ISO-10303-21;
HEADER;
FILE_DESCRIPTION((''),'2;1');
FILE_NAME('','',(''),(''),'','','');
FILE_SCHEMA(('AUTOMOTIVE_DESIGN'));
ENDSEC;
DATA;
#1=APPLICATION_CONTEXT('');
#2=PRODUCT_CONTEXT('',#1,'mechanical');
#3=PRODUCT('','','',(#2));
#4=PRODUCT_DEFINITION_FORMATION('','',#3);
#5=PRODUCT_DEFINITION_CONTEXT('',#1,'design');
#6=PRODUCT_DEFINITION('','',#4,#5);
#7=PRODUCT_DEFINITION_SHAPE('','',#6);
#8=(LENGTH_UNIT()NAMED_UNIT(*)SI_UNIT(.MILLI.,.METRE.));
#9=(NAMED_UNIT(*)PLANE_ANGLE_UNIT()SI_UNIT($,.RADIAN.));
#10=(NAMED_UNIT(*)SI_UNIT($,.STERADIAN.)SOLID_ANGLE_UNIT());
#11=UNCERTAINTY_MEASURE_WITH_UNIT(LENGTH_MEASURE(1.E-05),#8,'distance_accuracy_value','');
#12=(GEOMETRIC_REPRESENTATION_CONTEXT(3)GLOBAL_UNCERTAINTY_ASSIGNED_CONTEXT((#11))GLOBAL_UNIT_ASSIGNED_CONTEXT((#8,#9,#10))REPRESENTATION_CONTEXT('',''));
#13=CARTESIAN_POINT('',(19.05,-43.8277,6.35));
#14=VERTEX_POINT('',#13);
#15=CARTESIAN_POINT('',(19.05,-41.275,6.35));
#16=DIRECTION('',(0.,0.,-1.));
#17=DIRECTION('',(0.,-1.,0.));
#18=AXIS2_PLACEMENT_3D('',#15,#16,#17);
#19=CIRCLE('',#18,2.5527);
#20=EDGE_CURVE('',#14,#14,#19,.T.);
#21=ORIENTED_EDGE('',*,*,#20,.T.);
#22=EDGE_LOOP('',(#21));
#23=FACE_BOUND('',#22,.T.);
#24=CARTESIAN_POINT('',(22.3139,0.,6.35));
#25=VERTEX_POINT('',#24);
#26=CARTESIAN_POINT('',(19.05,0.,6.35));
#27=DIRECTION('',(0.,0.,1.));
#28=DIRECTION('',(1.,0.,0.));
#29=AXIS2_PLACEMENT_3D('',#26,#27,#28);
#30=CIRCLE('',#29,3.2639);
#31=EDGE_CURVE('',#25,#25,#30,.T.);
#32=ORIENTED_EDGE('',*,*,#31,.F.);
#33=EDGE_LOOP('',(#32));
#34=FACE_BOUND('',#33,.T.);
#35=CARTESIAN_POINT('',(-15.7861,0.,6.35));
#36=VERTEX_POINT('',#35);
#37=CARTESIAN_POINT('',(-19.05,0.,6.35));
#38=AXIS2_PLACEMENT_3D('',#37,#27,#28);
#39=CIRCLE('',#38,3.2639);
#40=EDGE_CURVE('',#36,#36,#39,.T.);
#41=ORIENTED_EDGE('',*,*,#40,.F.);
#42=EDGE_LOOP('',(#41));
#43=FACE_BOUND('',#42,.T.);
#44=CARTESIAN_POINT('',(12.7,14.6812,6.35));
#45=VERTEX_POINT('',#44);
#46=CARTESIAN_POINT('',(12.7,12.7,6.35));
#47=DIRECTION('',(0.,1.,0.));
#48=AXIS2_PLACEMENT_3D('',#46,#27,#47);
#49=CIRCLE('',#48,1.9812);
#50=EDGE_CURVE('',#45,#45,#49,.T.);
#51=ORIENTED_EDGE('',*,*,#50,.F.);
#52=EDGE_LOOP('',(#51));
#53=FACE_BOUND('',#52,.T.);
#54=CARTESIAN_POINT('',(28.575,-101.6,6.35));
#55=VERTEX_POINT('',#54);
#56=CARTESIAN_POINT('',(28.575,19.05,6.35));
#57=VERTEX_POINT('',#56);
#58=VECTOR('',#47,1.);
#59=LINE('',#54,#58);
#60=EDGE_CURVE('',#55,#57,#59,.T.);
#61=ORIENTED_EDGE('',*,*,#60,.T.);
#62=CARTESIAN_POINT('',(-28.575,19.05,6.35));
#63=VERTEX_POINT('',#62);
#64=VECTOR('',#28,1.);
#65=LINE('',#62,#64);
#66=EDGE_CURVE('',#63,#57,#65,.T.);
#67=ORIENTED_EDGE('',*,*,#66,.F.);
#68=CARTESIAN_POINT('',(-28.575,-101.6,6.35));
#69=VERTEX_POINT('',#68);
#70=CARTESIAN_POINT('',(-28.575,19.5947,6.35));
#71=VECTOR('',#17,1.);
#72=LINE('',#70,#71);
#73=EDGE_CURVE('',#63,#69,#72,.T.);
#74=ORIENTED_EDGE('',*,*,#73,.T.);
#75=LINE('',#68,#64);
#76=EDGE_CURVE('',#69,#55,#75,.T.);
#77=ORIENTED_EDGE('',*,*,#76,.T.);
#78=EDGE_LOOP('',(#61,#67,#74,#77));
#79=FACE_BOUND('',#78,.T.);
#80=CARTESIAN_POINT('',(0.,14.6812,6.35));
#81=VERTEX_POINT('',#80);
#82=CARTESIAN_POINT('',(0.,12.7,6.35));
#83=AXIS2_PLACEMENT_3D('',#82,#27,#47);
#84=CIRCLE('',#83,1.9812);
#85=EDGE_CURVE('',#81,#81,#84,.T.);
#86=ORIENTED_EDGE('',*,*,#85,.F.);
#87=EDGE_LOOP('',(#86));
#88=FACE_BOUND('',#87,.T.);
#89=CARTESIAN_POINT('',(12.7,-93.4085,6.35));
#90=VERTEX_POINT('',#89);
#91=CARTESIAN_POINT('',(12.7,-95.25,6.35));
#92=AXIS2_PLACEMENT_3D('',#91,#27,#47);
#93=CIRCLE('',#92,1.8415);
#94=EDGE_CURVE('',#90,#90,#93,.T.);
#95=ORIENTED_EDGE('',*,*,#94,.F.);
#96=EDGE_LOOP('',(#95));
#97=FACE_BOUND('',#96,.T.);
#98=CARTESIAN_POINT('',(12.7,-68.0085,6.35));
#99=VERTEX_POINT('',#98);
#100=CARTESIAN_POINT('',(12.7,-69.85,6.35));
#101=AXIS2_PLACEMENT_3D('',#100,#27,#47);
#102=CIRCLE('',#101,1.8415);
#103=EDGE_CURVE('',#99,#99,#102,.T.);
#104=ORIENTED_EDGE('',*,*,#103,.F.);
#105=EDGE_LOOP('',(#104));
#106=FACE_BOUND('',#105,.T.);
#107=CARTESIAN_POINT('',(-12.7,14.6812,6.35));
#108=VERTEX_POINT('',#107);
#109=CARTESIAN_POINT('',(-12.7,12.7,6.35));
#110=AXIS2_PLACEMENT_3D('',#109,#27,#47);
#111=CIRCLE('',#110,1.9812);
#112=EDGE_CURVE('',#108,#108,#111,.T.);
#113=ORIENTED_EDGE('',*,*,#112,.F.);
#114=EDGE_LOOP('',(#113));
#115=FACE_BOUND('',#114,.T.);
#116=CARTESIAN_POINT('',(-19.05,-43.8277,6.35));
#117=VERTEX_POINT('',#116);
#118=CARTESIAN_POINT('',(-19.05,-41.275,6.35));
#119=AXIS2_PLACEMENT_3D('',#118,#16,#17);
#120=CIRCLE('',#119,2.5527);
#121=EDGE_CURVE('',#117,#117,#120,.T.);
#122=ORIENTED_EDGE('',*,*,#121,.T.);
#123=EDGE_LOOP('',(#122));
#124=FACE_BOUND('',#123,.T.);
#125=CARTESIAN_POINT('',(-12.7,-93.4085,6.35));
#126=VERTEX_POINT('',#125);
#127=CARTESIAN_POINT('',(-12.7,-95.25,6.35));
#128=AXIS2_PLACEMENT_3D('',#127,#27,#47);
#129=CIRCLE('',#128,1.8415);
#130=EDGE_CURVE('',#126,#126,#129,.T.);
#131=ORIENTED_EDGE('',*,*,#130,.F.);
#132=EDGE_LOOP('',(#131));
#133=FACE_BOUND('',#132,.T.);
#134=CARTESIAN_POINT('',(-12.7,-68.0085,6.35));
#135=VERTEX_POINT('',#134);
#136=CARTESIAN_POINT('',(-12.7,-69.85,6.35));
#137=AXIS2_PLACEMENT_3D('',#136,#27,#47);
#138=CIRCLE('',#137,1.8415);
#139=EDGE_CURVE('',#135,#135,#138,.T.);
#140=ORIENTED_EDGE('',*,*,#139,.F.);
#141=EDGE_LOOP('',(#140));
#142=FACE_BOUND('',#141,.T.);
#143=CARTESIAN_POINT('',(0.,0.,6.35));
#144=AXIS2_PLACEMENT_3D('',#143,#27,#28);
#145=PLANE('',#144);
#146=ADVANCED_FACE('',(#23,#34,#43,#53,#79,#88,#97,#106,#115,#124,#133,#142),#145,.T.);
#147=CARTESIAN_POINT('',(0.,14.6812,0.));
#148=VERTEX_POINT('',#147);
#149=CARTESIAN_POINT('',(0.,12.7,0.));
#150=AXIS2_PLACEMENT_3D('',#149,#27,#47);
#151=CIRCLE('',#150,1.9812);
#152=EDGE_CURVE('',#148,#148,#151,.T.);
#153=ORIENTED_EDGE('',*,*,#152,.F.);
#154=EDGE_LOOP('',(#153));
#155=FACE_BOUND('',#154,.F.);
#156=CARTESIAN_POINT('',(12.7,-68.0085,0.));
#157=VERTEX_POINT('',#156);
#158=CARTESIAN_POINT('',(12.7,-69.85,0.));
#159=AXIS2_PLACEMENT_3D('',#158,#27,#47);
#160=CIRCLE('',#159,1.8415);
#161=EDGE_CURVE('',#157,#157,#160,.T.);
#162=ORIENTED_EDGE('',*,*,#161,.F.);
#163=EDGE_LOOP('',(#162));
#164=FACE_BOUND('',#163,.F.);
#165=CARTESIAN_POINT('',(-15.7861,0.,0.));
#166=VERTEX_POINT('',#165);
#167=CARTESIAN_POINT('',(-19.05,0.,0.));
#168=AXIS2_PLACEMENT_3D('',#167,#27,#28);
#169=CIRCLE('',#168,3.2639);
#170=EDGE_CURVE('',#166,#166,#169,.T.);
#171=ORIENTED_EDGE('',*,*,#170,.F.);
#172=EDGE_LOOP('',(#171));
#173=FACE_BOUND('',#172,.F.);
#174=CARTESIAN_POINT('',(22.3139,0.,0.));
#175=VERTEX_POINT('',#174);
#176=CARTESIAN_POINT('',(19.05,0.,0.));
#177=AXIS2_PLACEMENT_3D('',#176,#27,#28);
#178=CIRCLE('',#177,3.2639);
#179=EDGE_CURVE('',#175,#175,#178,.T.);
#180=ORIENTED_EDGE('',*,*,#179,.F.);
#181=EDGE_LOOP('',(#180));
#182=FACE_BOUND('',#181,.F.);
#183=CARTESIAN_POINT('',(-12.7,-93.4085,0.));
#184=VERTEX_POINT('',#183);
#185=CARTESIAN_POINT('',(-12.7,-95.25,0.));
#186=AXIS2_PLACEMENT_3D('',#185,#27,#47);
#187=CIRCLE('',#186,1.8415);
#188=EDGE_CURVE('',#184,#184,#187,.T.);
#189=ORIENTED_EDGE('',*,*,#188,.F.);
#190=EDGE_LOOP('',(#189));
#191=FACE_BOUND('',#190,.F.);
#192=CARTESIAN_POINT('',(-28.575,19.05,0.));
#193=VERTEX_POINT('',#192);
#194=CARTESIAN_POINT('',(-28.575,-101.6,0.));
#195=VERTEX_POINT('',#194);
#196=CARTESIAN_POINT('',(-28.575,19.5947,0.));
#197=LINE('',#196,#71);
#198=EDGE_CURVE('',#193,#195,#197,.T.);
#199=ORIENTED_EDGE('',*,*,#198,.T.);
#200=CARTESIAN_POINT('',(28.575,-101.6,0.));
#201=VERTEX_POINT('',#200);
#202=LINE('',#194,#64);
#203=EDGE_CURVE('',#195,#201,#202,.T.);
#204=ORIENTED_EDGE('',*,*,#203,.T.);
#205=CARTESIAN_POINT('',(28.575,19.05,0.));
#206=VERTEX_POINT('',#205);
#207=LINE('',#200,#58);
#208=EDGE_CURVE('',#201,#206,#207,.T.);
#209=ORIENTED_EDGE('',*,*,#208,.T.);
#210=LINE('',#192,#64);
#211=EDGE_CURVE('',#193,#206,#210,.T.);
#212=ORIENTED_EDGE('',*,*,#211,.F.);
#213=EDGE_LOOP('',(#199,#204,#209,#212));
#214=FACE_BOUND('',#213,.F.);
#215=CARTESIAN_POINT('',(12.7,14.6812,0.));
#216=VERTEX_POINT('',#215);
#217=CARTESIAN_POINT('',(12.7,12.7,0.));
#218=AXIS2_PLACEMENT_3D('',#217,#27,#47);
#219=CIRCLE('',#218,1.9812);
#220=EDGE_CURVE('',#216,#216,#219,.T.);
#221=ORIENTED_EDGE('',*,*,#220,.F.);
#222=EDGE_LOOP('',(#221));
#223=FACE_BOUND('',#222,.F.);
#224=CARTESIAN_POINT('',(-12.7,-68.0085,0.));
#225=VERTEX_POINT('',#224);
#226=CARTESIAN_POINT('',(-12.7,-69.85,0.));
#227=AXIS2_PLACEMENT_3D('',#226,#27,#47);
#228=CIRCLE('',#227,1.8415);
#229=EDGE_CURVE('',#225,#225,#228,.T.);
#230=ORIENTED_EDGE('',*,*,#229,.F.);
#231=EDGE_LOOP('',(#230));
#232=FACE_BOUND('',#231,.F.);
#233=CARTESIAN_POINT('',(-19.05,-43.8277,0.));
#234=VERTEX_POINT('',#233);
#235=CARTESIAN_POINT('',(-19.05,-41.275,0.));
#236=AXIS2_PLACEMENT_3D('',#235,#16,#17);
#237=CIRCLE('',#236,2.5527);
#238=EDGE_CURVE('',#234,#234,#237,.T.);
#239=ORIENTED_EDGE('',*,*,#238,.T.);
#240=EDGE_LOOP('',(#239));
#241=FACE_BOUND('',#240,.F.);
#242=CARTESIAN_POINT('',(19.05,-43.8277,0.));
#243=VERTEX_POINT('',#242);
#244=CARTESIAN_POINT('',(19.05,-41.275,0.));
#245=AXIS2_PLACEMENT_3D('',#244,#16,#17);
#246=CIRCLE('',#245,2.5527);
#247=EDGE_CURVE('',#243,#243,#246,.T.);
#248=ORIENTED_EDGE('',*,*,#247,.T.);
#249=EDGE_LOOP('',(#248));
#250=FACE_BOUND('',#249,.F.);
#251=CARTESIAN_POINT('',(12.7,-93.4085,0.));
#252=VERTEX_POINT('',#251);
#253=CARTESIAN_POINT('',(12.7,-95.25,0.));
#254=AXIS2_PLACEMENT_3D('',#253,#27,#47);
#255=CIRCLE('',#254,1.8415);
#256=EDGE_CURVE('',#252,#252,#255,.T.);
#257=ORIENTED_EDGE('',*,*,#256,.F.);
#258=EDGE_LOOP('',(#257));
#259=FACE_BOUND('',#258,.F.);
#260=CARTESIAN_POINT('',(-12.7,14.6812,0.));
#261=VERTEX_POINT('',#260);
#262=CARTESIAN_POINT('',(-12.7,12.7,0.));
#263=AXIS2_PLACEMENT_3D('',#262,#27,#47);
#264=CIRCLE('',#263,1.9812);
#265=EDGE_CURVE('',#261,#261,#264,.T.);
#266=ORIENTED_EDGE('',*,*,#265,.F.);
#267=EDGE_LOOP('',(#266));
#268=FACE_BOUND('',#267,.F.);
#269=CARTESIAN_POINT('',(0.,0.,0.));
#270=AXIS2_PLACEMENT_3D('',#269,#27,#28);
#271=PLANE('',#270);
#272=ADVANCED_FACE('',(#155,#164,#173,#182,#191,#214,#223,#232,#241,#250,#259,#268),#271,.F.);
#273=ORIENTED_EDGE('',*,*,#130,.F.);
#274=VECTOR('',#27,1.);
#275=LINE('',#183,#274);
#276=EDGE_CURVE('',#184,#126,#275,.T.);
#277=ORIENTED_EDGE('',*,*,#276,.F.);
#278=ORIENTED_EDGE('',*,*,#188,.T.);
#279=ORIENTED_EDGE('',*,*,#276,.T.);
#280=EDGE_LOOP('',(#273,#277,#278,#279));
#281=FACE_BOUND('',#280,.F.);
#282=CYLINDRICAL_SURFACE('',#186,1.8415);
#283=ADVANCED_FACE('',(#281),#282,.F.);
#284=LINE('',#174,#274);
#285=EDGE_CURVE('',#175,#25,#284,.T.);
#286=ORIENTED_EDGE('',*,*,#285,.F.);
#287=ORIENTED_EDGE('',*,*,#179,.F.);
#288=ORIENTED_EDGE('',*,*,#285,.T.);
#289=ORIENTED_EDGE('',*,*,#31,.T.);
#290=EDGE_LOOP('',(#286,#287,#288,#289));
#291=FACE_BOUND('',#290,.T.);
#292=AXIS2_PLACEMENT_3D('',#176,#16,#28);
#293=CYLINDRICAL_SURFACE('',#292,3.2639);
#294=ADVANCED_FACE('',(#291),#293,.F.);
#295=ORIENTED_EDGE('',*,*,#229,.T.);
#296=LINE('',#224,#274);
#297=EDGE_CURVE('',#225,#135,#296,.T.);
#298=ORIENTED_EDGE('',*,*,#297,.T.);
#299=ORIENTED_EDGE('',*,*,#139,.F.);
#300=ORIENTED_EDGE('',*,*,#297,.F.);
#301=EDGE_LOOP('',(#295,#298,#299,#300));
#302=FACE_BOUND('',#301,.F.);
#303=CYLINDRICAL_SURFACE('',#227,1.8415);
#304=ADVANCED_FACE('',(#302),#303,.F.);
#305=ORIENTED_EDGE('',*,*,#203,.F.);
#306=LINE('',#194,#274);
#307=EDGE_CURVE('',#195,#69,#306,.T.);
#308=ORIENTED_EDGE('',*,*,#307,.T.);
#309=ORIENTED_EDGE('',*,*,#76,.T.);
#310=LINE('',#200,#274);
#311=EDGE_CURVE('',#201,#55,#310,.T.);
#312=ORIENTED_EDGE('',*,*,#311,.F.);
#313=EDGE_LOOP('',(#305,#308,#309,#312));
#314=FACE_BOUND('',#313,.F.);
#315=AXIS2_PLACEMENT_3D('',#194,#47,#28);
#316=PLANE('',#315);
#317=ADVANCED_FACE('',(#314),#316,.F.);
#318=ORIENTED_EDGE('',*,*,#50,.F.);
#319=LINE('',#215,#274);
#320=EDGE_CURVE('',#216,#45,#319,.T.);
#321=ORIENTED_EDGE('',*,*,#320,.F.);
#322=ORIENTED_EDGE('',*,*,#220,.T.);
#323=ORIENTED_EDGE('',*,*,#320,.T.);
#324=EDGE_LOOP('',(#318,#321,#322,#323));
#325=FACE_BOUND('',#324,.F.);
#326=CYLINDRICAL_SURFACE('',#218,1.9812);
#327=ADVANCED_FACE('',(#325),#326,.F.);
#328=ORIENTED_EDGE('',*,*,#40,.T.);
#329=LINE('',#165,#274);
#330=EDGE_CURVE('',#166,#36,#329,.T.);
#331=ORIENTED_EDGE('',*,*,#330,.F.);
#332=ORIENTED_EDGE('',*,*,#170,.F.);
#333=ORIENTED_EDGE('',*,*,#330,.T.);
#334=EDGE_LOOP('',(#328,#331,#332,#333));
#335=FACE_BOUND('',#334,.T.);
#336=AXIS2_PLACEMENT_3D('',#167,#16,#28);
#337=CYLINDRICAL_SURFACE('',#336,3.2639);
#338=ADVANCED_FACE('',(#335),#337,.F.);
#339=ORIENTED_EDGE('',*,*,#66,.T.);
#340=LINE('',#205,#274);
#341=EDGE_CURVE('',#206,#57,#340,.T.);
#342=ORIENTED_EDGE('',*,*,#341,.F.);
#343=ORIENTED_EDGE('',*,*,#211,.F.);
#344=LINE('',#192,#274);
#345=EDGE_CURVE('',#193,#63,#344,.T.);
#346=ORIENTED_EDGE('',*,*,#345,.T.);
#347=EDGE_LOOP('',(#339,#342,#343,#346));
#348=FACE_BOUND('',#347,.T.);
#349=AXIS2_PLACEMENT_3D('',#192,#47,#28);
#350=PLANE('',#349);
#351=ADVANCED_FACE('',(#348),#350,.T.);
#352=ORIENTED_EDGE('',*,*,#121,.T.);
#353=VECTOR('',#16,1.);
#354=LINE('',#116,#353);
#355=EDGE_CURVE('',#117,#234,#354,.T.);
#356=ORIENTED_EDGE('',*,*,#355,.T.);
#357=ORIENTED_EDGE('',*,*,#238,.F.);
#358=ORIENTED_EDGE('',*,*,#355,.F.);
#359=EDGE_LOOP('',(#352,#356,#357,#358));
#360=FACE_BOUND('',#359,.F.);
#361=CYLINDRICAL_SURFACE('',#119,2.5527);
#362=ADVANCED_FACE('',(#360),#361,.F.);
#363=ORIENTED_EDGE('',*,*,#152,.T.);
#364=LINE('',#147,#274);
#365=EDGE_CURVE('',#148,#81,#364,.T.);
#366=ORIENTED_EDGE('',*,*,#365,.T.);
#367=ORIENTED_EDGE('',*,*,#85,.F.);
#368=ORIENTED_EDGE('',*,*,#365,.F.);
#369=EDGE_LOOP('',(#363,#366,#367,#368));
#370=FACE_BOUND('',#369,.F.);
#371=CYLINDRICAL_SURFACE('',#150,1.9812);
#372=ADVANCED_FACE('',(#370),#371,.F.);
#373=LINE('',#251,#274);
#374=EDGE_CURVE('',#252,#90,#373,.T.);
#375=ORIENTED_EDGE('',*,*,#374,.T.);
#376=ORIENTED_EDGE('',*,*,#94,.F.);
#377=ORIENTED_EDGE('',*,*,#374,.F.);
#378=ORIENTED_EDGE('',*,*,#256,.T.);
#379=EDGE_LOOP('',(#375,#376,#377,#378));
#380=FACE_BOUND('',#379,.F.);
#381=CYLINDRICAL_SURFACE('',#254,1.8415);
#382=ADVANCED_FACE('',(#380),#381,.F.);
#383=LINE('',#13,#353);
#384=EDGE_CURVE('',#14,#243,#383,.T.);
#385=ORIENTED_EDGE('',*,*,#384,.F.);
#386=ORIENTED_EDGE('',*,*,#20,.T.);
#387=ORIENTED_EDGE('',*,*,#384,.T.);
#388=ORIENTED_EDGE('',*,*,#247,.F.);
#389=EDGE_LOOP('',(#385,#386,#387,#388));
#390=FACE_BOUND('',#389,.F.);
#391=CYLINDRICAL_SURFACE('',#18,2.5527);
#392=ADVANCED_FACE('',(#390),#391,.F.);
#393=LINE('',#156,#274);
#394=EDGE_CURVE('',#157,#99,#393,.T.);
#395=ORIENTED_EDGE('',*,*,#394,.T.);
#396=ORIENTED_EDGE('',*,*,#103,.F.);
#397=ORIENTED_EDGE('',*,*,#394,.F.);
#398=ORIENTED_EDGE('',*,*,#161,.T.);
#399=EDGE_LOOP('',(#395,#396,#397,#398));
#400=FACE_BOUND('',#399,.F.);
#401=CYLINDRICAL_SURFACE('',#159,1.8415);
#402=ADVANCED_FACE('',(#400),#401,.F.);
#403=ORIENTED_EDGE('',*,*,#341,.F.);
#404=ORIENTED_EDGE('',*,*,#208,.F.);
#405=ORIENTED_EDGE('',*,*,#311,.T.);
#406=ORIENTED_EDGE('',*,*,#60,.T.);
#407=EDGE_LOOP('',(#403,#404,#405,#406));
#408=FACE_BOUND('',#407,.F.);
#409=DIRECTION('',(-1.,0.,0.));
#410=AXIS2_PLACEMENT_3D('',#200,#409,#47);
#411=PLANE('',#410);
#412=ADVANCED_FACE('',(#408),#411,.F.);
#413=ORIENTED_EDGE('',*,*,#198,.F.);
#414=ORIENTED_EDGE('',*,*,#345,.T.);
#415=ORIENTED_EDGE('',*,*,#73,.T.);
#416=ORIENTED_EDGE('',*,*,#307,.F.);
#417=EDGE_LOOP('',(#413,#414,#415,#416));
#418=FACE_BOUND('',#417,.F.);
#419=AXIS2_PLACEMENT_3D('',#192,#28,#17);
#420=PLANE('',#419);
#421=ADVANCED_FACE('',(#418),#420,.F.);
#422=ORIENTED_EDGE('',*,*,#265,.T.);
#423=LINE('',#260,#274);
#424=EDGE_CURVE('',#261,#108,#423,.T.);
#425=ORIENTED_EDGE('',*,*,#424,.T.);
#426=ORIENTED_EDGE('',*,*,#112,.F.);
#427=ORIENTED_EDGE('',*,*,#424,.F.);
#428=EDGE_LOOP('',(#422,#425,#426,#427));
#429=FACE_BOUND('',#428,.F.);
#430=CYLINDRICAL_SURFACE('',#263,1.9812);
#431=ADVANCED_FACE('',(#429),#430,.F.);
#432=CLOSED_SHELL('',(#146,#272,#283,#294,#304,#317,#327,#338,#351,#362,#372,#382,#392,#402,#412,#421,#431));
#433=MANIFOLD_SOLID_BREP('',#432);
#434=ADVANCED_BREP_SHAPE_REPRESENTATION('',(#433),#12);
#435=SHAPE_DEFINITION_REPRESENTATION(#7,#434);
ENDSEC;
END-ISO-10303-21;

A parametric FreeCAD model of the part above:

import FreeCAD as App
import Part
import Sketcher

V = App.Vector
Q = App.Units.Quantity


def add_polygon(sketch, points):
    """Adds a closed chain of lines whose ends are joined by coincident constraints."""
    first, n = sketch.GeometryCount, len(points)
    for a, b in zip(points, points[1:] + points[:1]):
        sketch.addGeometry(Part.LineSegment(App.Vector(*a, 0), App.Vector(*b, 0)), False)
    for i in range(n):
        sketch.addConstraint(Sketcher.Constraint("Coincident", first + i, 2, first + (i + 1) % n, 1))

doc = App.newDocument("Part")
params = doc.addObject("Spreadsheet::Sheet", "Params")
for row, (alias, value) in enumerate([
    ("sketch1_diameter", "0.257 in"),
    ("sketch1_width", "2.25 in"),
    ("sketch1_height", "4.75 in"),
    ("pad1_length", "0.25 in"),
    ("sketch2_diameter", "0.201 in"),
    ("hole_diameter", "0.201 in"),
    ("sketch3_diameter", "0.156 in"),
    ("hole2_diameter", "0.156 in"),
    ("sketch4_diameter", "0.145 in"),
    ("hole3_diameter", "0.145 in"),
], start=1):
    params.set(f"A{row}", alias)
    params.set(f"B{row}", "=" + value)
    params.setAlias(f"B{row}", alias)

body = doc.addObject("PartDesign::Body", "Body")

sketch1 = body.newObject("Sketcher::SketchObject", "Sketch")
sketch1.AttachmentSupport = (doc.getObject("XY_Plane"), [""])
sketch1.MapMode = "FlatFace"
add_polygon(sketch1, [(28.575, 19.05), (-28.575, 19.05), (-28.575, -101.6), (28.575, -101.6)])
sketch1.addGeometry(Part.Circle(V(-19.05, 0, 0), V(0, 0, 1), 3.2639), False)
sketch1.addGeometry(Part.Circle(V(19.05, 0, 0), V(0, 0, 1), 3.2639), False)
sketch1.addConstraint([
    Sketcher.Constraint("Horizontal", 0),
    Sketcher.Constraint("Vertical", 1),
    Sketcher.Constraint("Horizontal", 2),
    Sketcher.Constraint("Vertical", 3),
    Sketcher.Constraint("Equal", 4, 5),
    Sketcher.Constraint("Symmetric", 4, 3, 5, 3, -1, 1),
    Sketcher.Constraint("PointOnObject", 4, 3, -1),
    Sketcher.Constraint("Diameter", 4, Q("0.257 in")),
    Sketcher.Constraint("DistanceY", 1, 2, -1, 1, Q("4 in")),
    Sketcher.Constraint("DistanceX", 0, 2, 0, 1, Q("2.25 in")),
    Sketcher.Constraint("DistanceY", 1, 2, 1, 1, Q("4.75 in")),
    Sketcher.Constraint("DistanceX", 4, 3, 5, 3, Q("1.5 in")),
    Sketcher.Constraint("DistanceX", 0, 2, -1, 1, Q("1.125 in")),
])
sketch1.setExpression("Constraints[11]", "Params.sketch1_diameter")
sketch1.setExpression("Constraints[13]", "Params.sketch1_width")
sketch1.setExpression("Constraints[14]", "Params.sketch1_height")
pad1 = body.newObject("PartDesign::Pad", "Pad")
pad1.Profile = sketch1
pad1.setExpression("Length", "Params.pad1_length")

sketch2 = body.newObject("Sketcher::SketchObject", "Sketch001")
sketch2.AttachmentSupport = (doc.getObject("XY_Plane"), [""])
sketch2.MapMode = "FlatFace"
sketch2.AttachmentOffset = App.Placement(V(0, 0, 0.25 * 25.4), App.Rotation())
sketch2.addGeometry([
    Part.Circle(V(-19.05, -41.275, 0), V(0, 0, 1), 2.5527),
    Part.Circle(V(19.05, -41.275, 0), V(0, 0, 1), 2.5527),
], False)
sketch2.addConstraint([
    Sketcher.Constraint("Equal", 0, 1),
    Sketcher.Constraint("Symmetric", 0, 3, 1, 3, -2),
    Sketcher.Constraint("Diameter", 0, Q("0.201 in")),
    Sketcher.Constraint("DistanceX", 0, 3, 1, 3, Q("1.5 in")),
    Sketcher.Constraint("DistanceY", 0, 3, -1, 1, Q("1.625 in")),
])
sketch2.setExpression("Constraints[2]", "Params.sketch2_diameter")
doc.recompute()
hole = body.newObject("PartDesign::Hole", "Hole")
hole.Profile = sketch2
hole.ThreadType = "None"
hole.setExpression("Diameter", "Params.hole_diameter")
hole.DepthType = "ThroughAll"

sketch3 = body.newObject("Sketcher::SketchObject", "Sketch002")
sketch3.AttachmentSupport = (doc.getObject("XY_Plane"), [""])
sketch3.MapMode = "FlatFace"
sketch3.addGeometry([
    Part.Circle(V(-12.7, 12.7, 0), V(0, 0, 1), 1.9812),
    Part.Circle(V(0, 12.7, 0), V(0, 0, 1), 1.9812),
    Part.Circle(V(12.7, 12.7, 0), V(0, 0, 1), 1.9812),
], False)
sketch3.addConstraint([
    Sketcher.Constraint("Equal", 0, 1),
    Sketcher.Constraint("Equal", 1, 2),
    Sketcher.Constraint("Symmetric", 0, 3, 2, 3, -2),
    Sketcher.Constraint("PointOnObject", 1, 3, -2),
    Sketcher.Constraint("Horizontal", 0, 3, 1, 3),
    Sketcher.Constraint("Diameter", 0, Q("0.156 in")),
    Sketcher.Constraint("DistanceX", 0, 3, 2, 3, Q("1 in")),
    Sketcher.Constraint("DistanceY", -1, 1, 0, 3, Q("0.5 in")),
])
sketch3.setExpression("Constraints[5]", "Params.sketch3_diameter")
doc.recompute()
hole2 = body.newObject("PartDesign::Hole", "Hole001")
hole2.Profile = sketch3
hole2.ThreadType = "None"
hole2.setExpression("Diameter", "Params.hole2_diameter")
hole2.DepthType = "ThroughAll"
hole2.Reversed = True

sketch4 = body.newObject("Sketcher::SketchObject", "Sketch003")
sketch4.AttachmentSupport = (doc.getObject("XY_Plane"), [""])
sketch4.MapMode = "FlatFace"
sketch4.addGeometry([
    Part.Circle(V(-12.7, -69.85, 0), V(0, 0, 1), 1.8415),
    Part.Circle(V(12.7, -69.85, 0), V(0, 0, 1), 1.8415),
    Part.Circle(V(-12.7, -95.25, 0), V(0, 0, 1), 1.8415),
    Part.Circle(V(12.7, -95.25, 0), V(0, 0, 1), 1.8415),
], False)
sketch4.addConstraint([
    Sketcher.Constraint("Equal", 0, 1),
    Sketcher.Constraint("Equal", 1, 2),
    Sketcher.Constraint("Equal", 2, 3),
    Sketcher.Constraint("Symmetric", 0, 3, 1, 3, -2),
    Sketcher.Constraint("Symmetric", 2, 3, 3, 3, -2),
    Sketcher.Constraint("Vertical", 0, 3, 2, 3),
    Sketcher.Constraint("Diameter", 0, Q("0.145 in")),
    Sketcher.Constraint("DistanceX", 0, 3, 1, 3, Q("1 in")),
    Sketcher.Constraint("DistanceY", 2, 3, 0, 3, Q("1 in")),
    Sketcher.Constraint("DistanceY", 0, 3, -1, 1, Q("2.75 in")),
])
sketch4.setExpression("Constraints[6]", "Params.sketch4_diameter")
doc.recompute()
hole3 = body.newObject("PartDesign::Hole", "Hole002")
hole3.Profile = sketch4
hole3.ThreadType = "None"
hole3.setExpression("Diameter", "Params.hole3_diameter")
hole3.DepthType = "ThroughAll"
hole3.Reversed = True

doc.recompute()
